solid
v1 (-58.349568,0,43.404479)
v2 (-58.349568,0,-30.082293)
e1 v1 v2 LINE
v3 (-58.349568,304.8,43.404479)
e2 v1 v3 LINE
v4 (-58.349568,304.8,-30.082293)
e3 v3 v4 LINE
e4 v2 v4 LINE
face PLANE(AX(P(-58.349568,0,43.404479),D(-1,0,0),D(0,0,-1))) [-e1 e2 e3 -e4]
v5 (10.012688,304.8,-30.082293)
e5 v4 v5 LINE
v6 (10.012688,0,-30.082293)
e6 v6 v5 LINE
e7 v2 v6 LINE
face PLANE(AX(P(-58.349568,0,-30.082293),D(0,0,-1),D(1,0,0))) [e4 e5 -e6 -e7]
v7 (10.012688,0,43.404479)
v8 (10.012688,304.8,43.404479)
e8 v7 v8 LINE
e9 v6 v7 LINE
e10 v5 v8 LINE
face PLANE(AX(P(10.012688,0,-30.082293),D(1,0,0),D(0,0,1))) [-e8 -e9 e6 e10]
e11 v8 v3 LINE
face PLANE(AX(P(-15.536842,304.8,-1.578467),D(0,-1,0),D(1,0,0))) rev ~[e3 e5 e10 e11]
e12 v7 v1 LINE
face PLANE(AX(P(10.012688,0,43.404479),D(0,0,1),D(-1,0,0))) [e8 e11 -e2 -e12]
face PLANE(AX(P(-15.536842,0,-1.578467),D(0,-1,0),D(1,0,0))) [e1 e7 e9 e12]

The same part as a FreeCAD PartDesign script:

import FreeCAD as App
import Part
import Sketcher

V = App.Vector
Q = App.Units.Quantity


def add_polygon(sketch, points):
    """Adds a closed chain of lines whose ends are joined by coincident constraints."""
    first, n = sketch.GeometryCount, len(points)
    for a, b in zip(points, points[1:] + points[:1]):
        sketch.addGeometry(Part.LineSegment(App.Vector(*a, 0), App.Vector(*b, 0)), False)
    for i in range(n):
        sketch.addConstraint(Sketcher.Constraint("Coincident", first + i, 2, first + (i + 1) % n, 1))

doc = App.newDocument("Part")
body = doc.addObject("PartDesign::Body", "Body")

# Sketch on XZ plane
sketch1 = body.newObject("Sketcher::SketchObject", "Sketch")
sketch1.AttachmentSupport = (doc.getObject("XZ_Plane"), [""])
sketch1.MapMode = "FlatFace"
add_polygon(sketch1, [(10, -30), (10, 43), (-58, 43), (-58, -30)])  # lines 0-3
sketch1.addConstraint([
    Sketcher.Constraint("Vertical", 0),
    Sketcher.Constraint("Horizontal", 1),
    Sketcher.Constraint("Vertical", 2),
    Sketcher.Constraint("Horizontal", 3),
    Sketcher.Constraint("DistanceY", 0, 1, 0, 2, Q("73.486772 mm")),
    Sketcher.Constraint("DistanceX", 1, 2, 1, 1, Q("68.362256 mm")),
    Sketcher.Constraint("DistanceX", -1, 1, 0, 2, Q("10.012688 mm")),
    Sketcher.Constraint("DistanceY", -1, 1, 0, 2, Q("43.404479 mm")),
])
pad1 = body.newObject("PartDesign::Pad", "Pad")
pad1.Profile = sketch1
pad1.Length = Q("12 in")
pad1.Reversed = True

# Sketch on XZ plane
sketch2 = body.newObject("Sketcher::SketchObject", "Sketch001")
sketch2.AttachmentSupport = (doc.getObject("XZ_Plane"), [""])
sketch2.MapMode = "FlatFace"
sketch2.AttachmentOffset = App.Placement(V(0, 0, -12 * 25.4), App.Rotation())
add_polygon(sketch2, [(-21, 16), (-21, -15), (-44, -15), (-44, 16)])  # lines 0-3
sketch2.addConstraint([
    Sketcher.Constraint("Vertical", 0),
    Sketcher.Constraint("Horizontal", 1),
    Sketcher.Constraint("Vertical", 2),
    Sketcher.Constraint("Horizontal", 3),
    Sketcher.Constraint("DistanceX", 1, 2, 1, 1, Q("23.356358 mm")),
    Sketcher.Constraint("DistanceY", 0, 2, 0, 1, Q("31.656551 mm")),
    Sketcher.Constraint("DistanceX", 0, 2, -1, 1, Q("21.040024 mm")),
    Sketcher.Constraint("DistanceY", 0, 2, -1, 1, Q("15.345705 mm")),
])
pad2 = body.newObject("PartDesign::Pad", "Pad001")
pad2.Profile = sketch2
pad2.Length = Q("6 in")

doc.recompute()
